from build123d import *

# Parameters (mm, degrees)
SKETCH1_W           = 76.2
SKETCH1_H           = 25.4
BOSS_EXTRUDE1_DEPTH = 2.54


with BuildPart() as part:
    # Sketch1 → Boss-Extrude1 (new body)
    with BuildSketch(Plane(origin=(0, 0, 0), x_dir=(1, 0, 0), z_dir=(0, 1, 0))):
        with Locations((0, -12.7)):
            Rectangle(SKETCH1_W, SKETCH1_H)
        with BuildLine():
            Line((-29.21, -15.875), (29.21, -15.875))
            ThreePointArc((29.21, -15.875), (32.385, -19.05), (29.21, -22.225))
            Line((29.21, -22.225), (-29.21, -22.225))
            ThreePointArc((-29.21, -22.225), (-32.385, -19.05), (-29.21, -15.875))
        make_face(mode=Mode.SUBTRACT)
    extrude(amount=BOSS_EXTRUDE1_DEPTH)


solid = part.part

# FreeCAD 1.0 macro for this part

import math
import FreeCAD as App
import Part
import Sketcher
Q = App.Units.Quantity


def add_polygon(sketch, points):
    """Adds a closed chain of lines whose ends are joined by coincident constraints."""
    first, n = sketch.GeometryCount, len(points)
    for a, b in zip(points, points[1:] + points[:1]):
        sketch.addGeometry(Part.LineSegment(App.Vector(*a, 0), App.Vector(*b, 0)), False)
    for i in range(n):
        sketch.addConstraint(Sketcher.Constraint("Coincident", first + i, 2, first + (i + 1) % n, 1))

doc = App.newDocument("Part")
params = doc.addObject("Spreadsheet::Sheet", "Params")
for row, (alias, value) in enumerate([
    ("sketch1_width", "3 in"),
    ("sketch1_height", "1 in"),
    ("sketch1_width2", "2.3 in"),
    ("sketch1_radius", "0.125 in"),
    ("pad1_length", "0.1 in"),
], start=1):
    params.set(f"A{row}", alias)
    params.set(f"B{row}", "=" + value)
    params.setAlias(f"B{row}", alias)

body = doc.addObject("PartDesign::Body", "Body")

sketch1 = body.newObject("Sketcher::SketchObject", "Sketch")
sketch1.AttachmentSupport = (doc.getObject("XZ_Plane"), [""])
sketch1.MapMode = "FlatFace"
add_polygon(sketch1, [(-38.1, 0), (-38.1, 25.4), (38.1, 25.4), (38.1, 0)])
sketch1.addGeometry(Part.ArcOfCircle(Part.Circle(App.Vector(-29.21, 19.05, 0), App.Vector(0, 0, 1), 3.175), math.radians(90), math.radians(270)), False)
sketch1.addGeometry(Part.LineSegment(App.Vector(-29.21, 15.875, 0), App.Vector(29.21, 15.875, 0)), False)
sketch1.addGeometry(Part.ArcOfCircle(Part.Circle(App.Vector(29.21, 19.05, 0), App.Vector(0, 0, 1), 3.175), math.radians(-90), math.radians(90)), False)
sketch1.addGeometry(Part.LineSegment(App.Vector(29.21, 22.225, 0), App.Vector(-29.21, 22.225, 0)), False)
sketch1.addConstraint([
    Sketcher.Constraint("Tangent", 4, 2, 5, 1),
    Sketcher.Constraint("Tangent", 5, 2, 6, 1),
    Sketcher.Constraint("Tangent", 6, 2, 7, 1),
    Sketcher.Constraint("Tangent", 7, 2, 4, 1),
    Sketcher.Constraint("Vertical", 0),
    Sketcher.Constraint("Horizontal", 1),
    Sketcher.Constraint("Vertical", 2),
    Sketcher.Constraint("Horizontal", 3),
    Sketcher.Constraint("Horizontal", 5),
    Sketcher.Constraint("Horizontal", 7),
    Sketcher.Constraint("Symmetric", 2, 2, 3, 2, -1, 1),
    Sketcher.Constraint("DistanceX", 1, 1, 1, 2, Q("3 in")),
    Sketcher.Constraint("DistanceY", 0, 1, 0, 2, Q("1 in")),
    Sketcher.Constraint("DistanceX", 5, 1, 5, 2, Q("2.3 in")),
    Sketcher.Constraint("Radius", 4, Q("0.125 in")),
    Sketcher.Constraint("DistanceX", 4, 3, -1, 1, Q("1.15 in")),
    Sketcher.Constraint("DistanceY", -1, 1, 4, 3, Q("0.75 in")),
])
sketch1.setExpression("Constraints[15]", "Params.sketch1_width")
sketch1.setExpression("Constraints[16]", "Params.sketch1_height")
sketch1.setExpression("Constraints[17]", "Params.sketch1_width2")
sketch1.setExpression("Constraints[18]", "Params.sketch1_radius")
pad1 = body.newObject("PartDesign::Pad", "Pad")
pad1.Profile = sketch1
pad1.setExpression("Length", "Params.pad1_length")
pad1.Reversed = True

doc.recompute()
